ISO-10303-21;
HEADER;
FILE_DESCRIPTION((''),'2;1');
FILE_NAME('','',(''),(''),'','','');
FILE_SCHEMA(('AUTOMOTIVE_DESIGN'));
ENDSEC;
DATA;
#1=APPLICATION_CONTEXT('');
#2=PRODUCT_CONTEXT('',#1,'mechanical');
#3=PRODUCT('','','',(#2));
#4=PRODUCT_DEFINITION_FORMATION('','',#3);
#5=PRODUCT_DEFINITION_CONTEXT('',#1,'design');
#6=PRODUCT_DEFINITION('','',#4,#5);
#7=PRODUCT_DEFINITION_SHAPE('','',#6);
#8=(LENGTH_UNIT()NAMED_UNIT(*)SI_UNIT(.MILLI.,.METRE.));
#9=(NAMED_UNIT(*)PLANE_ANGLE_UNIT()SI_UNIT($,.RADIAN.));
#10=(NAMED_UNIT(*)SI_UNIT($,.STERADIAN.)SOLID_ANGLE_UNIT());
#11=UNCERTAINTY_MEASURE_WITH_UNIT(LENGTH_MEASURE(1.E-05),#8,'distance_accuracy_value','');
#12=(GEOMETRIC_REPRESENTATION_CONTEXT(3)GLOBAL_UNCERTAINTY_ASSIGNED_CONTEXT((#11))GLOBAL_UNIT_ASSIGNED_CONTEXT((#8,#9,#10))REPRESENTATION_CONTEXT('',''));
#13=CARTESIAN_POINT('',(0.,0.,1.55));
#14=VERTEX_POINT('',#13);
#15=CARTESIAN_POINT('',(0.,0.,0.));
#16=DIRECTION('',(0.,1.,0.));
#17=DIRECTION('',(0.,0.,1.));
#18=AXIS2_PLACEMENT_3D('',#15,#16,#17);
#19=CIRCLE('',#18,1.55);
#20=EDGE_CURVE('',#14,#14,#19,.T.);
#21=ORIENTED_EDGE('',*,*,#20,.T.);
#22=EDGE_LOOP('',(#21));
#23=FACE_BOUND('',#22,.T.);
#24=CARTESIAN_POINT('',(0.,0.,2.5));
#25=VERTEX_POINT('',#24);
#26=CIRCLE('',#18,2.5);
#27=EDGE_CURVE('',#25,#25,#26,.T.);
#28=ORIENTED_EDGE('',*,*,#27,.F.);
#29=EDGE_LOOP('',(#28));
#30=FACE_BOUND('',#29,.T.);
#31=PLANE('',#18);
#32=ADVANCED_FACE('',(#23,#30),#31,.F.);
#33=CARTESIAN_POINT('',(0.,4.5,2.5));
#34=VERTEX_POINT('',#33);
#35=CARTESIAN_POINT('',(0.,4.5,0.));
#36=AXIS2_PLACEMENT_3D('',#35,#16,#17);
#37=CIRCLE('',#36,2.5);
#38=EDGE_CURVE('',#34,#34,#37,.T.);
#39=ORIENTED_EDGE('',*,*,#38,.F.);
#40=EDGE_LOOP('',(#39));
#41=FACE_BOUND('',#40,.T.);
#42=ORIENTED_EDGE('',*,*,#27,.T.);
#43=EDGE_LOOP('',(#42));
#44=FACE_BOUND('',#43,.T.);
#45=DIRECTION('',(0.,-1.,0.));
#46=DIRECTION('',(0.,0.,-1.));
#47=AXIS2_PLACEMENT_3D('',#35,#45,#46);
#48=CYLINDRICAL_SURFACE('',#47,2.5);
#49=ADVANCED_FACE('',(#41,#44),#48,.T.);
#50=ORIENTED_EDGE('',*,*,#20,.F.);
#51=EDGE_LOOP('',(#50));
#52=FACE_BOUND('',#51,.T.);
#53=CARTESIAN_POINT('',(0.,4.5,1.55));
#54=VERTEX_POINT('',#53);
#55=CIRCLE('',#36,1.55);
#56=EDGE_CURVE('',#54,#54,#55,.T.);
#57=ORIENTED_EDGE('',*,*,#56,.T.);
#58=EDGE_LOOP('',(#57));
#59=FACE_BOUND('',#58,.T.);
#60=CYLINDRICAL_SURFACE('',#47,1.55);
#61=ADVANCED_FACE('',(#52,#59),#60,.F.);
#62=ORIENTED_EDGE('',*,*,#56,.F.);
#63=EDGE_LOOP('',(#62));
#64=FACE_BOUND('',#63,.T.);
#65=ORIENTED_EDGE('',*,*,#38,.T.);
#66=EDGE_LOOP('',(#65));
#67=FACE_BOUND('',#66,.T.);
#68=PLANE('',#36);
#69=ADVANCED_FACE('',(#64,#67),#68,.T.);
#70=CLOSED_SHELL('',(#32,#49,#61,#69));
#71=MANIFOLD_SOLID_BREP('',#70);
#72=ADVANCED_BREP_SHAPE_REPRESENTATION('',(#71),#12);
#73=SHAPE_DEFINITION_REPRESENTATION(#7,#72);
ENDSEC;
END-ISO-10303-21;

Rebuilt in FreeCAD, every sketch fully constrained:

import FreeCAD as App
import Part
import Sketcher
from FreeCAD import Vector
Q = App.Units.Quantity

doc = App.newDocument("Part")
body = doc.addObject("PartDesign::Body", "Body")

# Sketch on XZ plane
sketch1 = body.newObject("Sketcher::SketchObject", "Sketch")
sketch1.AttachmentSupport = (doc.getObject("XZ_Plane"), [""])
sketch1.MapMode = "FlatFace"
sketch1.addGeometry([
    Part.Circle(Vector(0, 0, 0), Vector(0, 0, 1), 2.5),
    Part.Circle(Vector(0, 0, 0), Vector(0, 0, 1), 1.6),
], False)
sketch1.addConstraint([
    Sketcher.Constraint("Coincident", 0, 3, -1, 1),
    Sketcher.Constraint("Coincident", 1, 3, -1, 1),
    Sketcher.Constraint("Diameter", 0, Q("5 mm")),
    Sketcher.Constraint("Diameter", 1, Q("3.1 mm")),
])
pad1 = body.newObject("PartDesign::Pad", "Pad")
pad1.Profile = sketch1
pad1.Length = 4.5
pad1.Reversed = True

doc.recompute()
